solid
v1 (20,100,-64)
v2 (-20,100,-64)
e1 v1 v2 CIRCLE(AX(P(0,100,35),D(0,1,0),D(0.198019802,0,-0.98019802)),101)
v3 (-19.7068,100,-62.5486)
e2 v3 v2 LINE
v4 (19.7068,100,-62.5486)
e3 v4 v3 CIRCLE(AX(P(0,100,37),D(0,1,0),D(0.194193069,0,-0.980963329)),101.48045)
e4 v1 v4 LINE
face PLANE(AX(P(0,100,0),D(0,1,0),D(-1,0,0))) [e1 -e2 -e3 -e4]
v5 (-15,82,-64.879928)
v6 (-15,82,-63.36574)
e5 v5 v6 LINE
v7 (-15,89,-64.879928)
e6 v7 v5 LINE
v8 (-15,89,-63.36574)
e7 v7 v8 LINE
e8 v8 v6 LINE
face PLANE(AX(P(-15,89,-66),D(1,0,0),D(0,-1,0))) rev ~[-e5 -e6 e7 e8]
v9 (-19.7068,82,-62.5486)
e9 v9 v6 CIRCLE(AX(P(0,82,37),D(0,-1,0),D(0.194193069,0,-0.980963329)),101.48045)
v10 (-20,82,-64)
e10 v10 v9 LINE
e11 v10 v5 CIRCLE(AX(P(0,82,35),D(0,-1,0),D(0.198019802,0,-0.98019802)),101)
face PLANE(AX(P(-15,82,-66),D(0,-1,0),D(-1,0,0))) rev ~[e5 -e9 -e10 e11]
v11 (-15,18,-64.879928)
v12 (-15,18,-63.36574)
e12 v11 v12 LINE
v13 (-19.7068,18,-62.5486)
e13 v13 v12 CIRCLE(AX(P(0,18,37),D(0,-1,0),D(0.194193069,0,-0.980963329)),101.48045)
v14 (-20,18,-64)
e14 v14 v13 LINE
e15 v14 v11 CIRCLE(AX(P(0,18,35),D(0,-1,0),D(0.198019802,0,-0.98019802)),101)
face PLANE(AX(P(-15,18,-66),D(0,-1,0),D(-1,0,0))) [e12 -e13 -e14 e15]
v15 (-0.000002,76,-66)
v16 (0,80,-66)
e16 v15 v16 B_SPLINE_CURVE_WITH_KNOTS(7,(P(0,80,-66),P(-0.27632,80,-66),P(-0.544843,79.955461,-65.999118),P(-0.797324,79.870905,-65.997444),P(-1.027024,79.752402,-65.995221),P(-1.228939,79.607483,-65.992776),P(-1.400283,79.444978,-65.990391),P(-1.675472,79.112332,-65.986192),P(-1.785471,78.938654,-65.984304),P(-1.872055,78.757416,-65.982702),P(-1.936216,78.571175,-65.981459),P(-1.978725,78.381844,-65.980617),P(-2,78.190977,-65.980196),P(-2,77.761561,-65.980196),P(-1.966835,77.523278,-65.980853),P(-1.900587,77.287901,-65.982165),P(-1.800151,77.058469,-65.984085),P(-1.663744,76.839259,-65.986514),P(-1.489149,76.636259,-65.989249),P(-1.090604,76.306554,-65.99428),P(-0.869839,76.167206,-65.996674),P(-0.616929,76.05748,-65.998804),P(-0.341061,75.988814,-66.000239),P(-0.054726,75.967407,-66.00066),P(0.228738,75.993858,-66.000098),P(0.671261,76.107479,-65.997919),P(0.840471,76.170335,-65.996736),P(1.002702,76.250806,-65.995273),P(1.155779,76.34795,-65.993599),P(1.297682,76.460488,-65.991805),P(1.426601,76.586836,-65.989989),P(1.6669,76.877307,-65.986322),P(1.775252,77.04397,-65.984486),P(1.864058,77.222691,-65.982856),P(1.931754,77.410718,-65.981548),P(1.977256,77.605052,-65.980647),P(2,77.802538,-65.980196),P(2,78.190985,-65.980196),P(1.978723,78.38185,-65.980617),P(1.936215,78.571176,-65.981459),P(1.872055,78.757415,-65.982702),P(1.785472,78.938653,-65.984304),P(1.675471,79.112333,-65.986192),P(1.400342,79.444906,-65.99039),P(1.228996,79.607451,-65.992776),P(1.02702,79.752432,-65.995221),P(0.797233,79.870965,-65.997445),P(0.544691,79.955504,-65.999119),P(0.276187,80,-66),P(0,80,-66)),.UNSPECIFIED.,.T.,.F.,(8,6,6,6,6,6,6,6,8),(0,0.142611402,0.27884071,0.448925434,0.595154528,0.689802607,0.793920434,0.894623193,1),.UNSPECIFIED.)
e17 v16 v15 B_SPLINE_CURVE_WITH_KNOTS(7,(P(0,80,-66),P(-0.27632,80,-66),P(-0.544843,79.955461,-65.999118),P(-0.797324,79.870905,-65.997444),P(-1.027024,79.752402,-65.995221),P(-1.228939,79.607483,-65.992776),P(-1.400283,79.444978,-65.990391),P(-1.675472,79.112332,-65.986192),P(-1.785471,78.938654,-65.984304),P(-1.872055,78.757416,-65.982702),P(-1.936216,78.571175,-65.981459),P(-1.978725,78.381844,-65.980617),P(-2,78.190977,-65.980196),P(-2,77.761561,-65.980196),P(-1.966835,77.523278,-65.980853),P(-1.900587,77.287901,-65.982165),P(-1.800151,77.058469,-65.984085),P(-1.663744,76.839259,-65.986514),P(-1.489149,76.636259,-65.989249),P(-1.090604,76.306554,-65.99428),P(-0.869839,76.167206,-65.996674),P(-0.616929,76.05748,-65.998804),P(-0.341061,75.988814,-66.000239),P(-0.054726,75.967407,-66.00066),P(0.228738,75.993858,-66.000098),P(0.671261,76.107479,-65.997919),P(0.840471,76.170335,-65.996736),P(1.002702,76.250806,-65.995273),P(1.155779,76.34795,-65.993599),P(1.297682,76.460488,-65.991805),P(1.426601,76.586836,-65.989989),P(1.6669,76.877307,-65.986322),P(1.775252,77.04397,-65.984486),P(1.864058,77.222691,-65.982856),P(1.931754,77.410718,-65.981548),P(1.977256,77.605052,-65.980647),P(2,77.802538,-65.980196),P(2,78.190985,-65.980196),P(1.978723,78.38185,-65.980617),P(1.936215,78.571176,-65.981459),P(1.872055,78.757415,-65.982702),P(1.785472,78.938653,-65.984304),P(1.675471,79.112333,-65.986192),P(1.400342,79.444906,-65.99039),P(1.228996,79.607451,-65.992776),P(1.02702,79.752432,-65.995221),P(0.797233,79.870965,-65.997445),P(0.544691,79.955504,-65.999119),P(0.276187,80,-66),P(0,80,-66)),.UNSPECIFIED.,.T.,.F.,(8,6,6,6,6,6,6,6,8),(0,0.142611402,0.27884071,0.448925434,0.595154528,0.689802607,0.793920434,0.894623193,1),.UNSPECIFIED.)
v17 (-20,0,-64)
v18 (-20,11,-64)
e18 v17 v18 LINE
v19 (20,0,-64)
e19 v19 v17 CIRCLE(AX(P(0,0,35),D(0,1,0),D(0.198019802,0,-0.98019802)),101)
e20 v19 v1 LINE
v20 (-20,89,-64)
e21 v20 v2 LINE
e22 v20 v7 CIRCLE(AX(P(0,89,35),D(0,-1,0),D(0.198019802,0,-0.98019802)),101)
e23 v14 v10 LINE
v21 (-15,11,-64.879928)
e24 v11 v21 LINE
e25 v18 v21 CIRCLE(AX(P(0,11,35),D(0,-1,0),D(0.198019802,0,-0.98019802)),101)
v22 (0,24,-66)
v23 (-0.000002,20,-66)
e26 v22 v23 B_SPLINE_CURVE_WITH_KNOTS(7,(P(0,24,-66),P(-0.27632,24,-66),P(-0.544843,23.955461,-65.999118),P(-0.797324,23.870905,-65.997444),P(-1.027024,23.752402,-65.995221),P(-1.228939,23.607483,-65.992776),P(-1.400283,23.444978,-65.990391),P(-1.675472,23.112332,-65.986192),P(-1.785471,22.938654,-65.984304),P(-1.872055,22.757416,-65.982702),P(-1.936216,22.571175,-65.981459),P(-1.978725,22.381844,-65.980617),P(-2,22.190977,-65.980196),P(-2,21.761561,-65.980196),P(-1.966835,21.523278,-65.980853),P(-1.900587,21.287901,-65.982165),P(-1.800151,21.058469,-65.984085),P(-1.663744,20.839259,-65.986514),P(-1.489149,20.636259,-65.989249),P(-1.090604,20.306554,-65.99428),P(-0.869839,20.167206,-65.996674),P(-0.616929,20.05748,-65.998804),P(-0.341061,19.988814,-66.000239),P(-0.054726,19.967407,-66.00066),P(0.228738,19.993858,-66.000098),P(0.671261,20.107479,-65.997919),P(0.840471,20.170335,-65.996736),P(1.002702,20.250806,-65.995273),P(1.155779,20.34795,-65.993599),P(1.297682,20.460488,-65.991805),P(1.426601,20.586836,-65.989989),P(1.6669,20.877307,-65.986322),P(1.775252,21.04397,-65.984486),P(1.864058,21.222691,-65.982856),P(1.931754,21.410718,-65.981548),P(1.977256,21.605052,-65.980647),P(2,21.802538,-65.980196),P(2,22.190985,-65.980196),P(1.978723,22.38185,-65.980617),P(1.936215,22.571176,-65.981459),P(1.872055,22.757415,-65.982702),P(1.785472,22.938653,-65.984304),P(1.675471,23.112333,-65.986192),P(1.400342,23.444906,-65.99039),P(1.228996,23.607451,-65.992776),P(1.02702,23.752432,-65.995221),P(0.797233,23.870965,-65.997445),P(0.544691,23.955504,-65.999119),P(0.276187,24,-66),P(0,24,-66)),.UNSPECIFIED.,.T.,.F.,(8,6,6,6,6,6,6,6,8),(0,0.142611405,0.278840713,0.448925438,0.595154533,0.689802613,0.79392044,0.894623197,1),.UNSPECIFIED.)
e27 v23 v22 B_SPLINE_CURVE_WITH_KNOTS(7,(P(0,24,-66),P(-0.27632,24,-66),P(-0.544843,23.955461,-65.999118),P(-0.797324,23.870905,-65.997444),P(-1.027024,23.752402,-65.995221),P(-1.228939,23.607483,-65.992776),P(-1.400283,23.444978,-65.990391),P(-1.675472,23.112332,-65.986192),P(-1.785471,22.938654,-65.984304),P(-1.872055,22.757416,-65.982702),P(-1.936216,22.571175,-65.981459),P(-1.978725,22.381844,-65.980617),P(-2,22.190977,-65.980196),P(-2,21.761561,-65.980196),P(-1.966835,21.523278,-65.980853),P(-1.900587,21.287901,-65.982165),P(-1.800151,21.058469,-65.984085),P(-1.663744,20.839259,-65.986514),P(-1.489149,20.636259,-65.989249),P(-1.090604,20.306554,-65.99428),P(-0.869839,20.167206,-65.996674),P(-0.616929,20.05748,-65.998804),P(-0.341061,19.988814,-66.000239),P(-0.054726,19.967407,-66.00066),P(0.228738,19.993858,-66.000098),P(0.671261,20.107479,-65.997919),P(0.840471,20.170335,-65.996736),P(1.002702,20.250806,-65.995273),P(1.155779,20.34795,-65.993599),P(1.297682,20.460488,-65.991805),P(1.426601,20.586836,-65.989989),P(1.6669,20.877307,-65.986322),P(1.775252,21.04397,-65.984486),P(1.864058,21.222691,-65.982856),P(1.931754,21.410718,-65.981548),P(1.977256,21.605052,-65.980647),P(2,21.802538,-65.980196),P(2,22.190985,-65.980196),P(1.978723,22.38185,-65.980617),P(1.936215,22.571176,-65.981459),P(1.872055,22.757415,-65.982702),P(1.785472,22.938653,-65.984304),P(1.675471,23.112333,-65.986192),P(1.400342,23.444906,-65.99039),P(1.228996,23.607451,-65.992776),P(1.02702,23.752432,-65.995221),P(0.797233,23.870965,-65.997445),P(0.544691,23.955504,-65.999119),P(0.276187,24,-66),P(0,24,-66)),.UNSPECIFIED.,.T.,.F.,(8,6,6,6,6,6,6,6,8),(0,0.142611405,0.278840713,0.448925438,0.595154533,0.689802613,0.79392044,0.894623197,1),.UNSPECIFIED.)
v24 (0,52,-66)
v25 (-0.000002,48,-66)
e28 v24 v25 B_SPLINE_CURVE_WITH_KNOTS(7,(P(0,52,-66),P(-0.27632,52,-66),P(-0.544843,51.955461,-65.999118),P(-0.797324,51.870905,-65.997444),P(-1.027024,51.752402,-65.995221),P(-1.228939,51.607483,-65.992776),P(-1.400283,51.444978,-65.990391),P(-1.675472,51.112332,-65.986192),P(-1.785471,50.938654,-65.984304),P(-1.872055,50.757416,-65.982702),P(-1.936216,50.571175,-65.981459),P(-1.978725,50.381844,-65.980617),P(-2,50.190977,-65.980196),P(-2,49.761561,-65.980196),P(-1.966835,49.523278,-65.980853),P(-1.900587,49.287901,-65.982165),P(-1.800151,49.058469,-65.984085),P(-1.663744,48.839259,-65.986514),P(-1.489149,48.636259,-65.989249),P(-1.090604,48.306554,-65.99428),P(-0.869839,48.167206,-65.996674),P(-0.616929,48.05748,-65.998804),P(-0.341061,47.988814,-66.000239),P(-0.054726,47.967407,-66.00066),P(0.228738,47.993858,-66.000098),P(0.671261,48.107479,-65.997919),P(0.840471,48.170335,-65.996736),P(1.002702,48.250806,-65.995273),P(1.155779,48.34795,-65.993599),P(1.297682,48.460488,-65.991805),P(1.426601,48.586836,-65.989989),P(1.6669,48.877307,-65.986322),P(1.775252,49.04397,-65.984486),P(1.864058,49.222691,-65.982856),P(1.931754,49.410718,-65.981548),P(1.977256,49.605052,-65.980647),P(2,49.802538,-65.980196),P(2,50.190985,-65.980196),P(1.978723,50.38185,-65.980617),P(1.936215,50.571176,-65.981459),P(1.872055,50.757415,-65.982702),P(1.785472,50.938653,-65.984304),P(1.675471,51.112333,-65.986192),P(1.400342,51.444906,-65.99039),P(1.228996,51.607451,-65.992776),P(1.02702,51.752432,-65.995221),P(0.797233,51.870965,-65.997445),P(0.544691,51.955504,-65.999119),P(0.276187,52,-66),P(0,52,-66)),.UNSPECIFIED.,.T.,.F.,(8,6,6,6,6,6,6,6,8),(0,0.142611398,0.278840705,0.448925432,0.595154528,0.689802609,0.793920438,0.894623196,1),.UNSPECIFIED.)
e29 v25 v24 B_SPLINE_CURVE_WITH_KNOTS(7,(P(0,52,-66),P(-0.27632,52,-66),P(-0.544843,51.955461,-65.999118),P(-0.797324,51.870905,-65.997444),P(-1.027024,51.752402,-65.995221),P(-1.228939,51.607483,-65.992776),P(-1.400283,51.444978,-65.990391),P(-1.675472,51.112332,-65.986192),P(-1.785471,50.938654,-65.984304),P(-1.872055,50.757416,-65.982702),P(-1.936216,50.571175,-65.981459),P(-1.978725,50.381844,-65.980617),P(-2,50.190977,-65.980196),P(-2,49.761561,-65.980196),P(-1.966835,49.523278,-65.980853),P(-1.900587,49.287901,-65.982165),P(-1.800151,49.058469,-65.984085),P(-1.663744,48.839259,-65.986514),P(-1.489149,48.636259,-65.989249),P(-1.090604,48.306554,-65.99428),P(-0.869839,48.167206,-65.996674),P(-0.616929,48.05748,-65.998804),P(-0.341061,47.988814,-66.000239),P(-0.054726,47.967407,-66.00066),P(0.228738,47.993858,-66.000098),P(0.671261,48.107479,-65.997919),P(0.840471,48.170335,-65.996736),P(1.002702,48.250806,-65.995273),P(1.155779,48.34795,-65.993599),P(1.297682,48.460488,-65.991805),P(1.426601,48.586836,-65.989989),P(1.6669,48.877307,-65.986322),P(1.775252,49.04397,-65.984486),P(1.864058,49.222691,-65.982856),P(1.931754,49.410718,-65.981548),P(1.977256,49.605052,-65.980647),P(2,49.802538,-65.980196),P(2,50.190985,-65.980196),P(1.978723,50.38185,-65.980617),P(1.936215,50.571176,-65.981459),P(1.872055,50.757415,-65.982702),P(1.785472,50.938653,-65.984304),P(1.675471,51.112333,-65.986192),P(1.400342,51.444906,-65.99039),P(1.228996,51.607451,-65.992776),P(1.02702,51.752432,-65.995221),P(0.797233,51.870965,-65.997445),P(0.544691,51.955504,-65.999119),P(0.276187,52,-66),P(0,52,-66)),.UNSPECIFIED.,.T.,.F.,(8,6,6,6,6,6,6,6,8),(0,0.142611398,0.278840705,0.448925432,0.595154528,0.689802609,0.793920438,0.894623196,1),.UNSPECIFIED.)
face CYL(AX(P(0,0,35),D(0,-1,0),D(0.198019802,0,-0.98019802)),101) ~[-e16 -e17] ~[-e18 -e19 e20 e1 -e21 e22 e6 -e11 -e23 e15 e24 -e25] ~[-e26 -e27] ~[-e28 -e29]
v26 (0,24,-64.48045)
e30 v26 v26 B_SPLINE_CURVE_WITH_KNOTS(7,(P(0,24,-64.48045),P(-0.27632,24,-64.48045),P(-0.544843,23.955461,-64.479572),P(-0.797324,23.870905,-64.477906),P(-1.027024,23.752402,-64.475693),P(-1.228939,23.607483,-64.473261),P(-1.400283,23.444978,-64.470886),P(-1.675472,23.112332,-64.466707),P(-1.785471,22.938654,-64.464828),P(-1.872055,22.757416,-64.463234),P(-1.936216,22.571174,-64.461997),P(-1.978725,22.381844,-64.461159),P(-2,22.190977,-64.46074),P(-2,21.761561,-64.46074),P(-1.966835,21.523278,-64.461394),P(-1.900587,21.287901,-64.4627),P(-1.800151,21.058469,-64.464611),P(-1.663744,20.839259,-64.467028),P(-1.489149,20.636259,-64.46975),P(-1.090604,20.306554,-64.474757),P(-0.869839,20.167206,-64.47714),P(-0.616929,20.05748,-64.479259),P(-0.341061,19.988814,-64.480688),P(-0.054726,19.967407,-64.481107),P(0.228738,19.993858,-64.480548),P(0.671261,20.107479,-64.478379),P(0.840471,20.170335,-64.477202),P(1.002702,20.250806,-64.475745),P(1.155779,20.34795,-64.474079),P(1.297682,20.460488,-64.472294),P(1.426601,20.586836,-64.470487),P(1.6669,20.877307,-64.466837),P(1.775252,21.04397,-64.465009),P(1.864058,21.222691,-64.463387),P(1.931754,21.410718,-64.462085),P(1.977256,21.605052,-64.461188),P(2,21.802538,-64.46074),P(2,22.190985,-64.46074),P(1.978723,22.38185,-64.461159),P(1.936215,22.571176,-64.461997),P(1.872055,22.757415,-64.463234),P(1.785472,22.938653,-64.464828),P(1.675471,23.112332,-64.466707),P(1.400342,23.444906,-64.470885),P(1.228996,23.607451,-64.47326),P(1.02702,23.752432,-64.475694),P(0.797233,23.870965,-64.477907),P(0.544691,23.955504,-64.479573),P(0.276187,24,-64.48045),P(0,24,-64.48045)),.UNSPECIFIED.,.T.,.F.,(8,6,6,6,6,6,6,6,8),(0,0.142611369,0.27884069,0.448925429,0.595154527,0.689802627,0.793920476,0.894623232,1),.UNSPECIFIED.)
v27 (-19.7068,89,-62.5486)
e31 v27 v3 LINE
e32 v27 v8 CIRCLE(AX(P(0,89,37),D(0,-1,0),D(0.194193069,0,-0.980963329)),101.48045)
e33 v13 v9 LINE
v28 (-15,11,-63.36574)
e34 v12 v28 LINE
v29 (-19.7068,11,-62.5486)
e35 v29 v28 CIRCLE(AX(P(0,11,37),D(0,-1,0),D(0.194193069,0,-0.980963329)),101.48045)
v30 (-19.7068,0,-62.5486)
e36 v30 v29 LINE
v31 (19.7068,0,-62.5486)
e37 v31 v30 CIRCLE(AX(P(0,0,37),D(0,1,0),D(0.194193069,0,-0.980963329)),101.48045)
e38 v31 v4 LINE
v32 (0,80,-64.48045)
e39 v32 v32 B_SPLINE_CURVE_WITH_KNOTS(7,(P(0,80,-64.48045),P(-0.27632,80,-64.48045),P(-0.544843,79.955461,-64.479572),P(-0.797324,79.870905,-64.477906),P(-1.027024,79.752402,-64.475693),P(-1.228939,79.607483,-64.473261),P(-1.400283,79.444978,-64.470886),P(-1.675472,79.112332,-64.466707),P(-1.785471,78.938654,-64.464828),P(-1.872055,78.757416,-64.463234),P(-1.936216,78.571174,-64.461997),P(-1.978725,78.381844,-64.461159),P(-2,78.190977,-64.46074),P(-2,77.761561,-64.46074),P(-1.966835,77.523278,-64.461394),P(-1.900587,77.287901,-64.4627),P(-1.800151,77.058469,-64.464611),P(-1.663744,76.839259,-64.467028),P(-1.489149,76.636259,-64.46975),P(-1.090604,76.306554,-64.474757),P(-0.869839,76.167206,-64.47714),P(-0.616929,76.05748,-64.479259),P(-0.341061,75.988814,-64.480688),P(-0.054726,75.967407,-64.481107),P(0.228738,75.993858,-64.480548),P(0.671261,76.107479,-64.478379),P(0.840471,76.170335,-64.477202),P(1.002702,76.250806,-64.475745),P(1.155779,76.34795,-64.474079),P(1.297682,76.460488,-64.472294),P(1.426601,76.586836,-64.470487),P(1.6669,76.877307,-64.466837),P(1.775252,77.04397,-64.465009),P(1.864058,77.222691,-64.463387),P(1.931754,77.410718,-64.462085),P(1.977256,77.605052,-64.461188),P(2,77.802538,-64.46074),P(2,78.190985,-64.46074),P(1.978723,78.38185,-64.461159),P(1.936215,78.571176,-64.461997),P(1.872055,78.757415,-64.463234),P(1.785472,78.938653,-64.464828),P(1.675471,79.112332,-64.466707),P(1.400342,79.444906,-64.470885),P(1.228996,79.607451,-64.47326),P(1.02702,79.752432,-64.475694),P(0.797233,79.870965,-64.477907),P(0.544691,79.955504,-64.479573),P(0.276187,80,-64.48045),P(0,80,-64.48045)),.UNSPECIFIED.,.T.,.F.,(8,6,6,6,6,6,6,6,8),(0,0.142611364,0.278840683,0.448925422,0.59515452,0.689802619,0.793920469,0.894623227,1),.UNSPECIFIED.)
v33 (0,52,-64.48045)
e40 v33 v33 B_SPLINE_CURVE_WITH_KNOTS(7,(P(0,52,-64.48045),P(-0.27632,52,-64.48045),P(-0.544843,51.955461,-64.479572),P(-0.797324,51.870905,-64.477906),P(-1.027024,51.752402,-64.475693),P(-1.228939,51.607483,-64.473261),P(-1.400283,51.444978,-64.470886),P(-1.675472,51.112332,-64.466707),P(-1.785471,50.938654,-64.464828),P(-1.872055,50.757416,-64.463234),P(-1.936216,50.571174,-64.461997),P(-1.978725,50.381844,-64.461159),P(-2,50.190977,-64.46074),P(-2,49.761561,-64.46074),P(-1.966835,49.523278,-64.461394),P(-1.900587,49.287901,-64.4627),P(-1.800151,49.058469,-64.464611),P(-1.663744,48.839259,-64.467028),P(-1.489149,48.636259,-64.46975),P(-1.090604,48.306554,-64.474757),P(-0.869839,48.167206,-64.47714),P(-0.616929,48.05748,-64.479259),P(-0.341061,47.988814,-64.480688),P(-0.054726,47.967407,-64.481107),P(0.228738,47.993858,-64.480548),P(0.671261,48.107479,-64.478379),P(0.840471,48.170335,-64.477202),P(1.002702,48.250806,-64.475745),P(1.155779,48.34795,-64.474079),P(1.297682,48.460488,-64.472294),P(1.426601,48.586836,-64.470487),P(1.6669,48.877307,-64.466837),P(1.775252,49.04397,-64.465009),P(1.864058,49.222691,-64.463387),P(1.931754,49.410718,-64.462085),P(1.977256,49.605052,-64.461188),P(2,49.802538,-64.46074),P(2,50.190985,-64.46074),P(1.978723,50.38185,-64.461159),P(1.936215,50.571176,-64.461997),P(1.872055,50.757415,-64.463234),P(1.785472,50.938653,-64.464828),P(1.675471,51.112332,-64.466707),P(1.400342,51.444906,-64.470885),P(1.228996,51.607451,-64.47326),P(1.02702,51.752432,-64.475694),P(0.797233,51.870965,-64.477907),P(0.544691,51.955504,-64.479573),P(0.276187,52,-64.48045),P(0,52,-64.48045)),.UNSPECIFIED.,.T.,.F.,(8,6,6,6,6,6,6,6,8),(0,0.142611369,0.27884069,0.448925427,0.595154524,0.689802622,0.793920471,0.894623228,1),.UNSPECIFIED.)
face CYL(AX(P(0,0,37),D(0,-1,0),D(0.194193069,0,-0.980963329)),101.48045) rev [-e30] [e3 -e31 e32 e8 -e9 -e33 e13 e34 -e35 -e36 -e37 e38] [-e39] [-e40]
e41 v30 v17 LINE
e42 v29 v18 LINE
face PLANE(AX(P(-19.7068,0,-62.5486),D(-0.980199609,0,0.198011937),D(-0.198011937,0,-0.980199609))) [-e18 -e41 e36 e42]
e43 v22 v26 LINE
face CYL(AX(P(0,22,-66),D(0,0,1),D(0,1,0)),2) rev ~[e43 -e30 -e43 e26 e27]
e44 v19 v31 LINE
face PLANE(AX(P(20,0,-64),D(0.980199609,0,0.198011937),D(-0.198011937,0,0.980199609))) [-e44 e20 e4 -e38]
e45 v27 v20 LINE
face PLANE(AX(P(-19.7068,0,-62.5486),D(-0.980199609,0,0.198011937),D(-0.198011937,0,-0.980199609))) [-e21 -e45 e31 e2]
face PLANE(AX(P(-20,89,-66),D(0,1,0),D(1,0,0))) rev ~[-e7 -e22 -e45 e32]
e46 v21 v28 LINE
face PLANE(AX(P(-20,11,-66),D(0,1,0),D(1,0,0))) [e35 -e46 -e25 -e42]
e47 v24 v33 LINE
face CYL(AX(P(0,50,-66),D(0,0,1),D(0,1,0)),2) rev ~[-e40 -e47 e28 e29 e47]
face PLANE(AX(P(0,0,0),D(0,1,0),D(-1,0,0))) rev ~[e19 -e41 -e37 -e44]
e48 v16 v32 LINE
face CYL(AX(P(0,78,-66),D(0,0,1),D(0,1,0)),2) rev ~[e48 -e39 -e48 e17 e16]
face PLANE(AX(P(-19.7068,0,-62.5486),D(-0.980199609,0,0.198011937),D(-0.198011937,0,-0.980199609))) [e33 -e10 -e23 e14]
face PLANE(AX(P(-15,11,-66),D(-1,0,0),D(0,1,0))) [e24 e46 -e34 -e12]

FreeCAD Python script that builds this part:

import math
import FreeCAD as App
import Part
import Sketcher
from FreeCAD import Vector
Q = App.Units.Quantity

doc = App.newDocument("Part")
body = doc.addObject("PartDesign::Body", "Body")

# Sketch on XZ plane
sketch1 = body.newObject("Sketcher::SketchObject", "Sketch")
sketch1.AttachmentSupport = (doc.getObject("XZ_Plane"), [""])
sketch1.MapMode = "FlatFace"
sketch1.addGeometry([
    Part.ArcOfCircle(Part.Circle(Vector(0, 37, 0), Vector(0, 0, 1), 101.48045), math.radians(-101.197589), math.radians(-78.802411)),
    Part.LineSegment(Vector(19.7068, -62.5486, 0), Vector(20, -64, 0)),
    Part.ArcOfCircle(Part.Circle(Vector(0, 35, 0), Vector(0, 0, 1), 101), math.radians(-101.421186), math.radians(-78.578814)),
    Part.LineSegment(Vector(-20, -64, 0), Vector(-19.7068, -62.5486, 0)),
], False)
sketch1.addConstraint([
    Sketcher.Constraint("Coincident", 0, 2, 1, 1),
    Sketcher.Constraint("Coincident", 1, 2, 2, 2),
    Sketcher.Constraint("Coincident", 2, 1, 3, 1),
    Sketcher.Constraint("Coincident", 3, 2, 0, 1),
    Sketcher.Constraint("Symmetric", 1, 2, 2, 1, -2),
    Sketcher.Constraint("Symmetric", 0, 2, 3, 2, -2),
    Sketcher.Constraint("Radius", 2, Q("101 mm")),
    Sketcher.Constraint("DistanceY", -1, 1, 2, 3, Q("35 mm")),
    Sketcher.Constraint("DistanceY", 2, 3, 0, 3, Q("2 mm")),
    Sketcher.Constraint("DistanceY", 1, 2, 0, 3, Q("101 mm")),
    Sketcher.Constraint("Angle", 1, Q("-78.5793 deg")),
    Sketcher.Constraint("Radius", 0, Q("101.4804 mm")),
])
pad1 = body.newObject("PartDesign::Pad", "Pad")
pad1.Profile = sketch1
pad1.Length = 100
pad1.Reversed = True

# Sketch on XY plane
sketch2 = body.newObject("Sketcher::SketchObject", "Sketch001")
sketch2.AttachmentSupport = (doc.getObject("XY_Plane"), [""])
sketch2.MapMode = "FlatFace"
sketch2.AttachmentOffset = App.Placement(Vector(0, 0, -66), App.Rotation())
sketch2.addGeometry([
    Part.Circle(Vector(0, 78, 0), Vector(0, 0, 1), 2),
    Part.Circle(Vector(0, 50, 0), Vector(0, 0, 1), 2),
    Part.Circle(Vector(0, 22, 0), Vector(0, 0, 1), 2),
], False)
sketch2.addConstraint([
    Sketcher.Constraint("Equal", 0, 1),
    Sketcher.Constraint("Equal", 1, 2),
    Sketcher.Constraint("PointOnObject", 0, 3, -2),
    Sketcher.Constraint("PointOnObject", 1, 3, -2),
    Sketcher.Constraint("PointOnObject", 2, 3, -2),
    Sketcher.Constraint("Diameter", 0, Q("4 mm")),
    Sketcher.Constraint("DistanceY", -1, 1, 0, 3, Q("78 mm")),
    Sketcher.Constraint("DistanceY", -1, 1, 1, 3, Q("50 mm")),
    Sketcher.Constraint("DistanceY", -1, 1, 2, 3, Q("22 mm")),
])
doc.recompute()
hole = body.newObject("PartDesign::Hole", "Hole")
hole.Profile = sketch2
hole.ThreadType = "None"
hole.Diameter = 4
hole.DepthType = "ThroughAll"
hole.Reversed = True

# Sketch on XY plane
sketch3 = body.newObject("Sketcher::SketchObject", "Sketch002")
sketch3.AttachmentSupport = (doc.getObject("XY_Plane"), [""])
sketch3.MapMode = "FlatFace"
sketch3.AttachmentOffset = App.Placement(Vector(0, 0, -66), App.Rotation())
sketch3.addGeometry([
    Part.LineSegment(Vector(-20, 89, 0), Vector(-20, 82, 0)),  # 0
    Part.LineSegment(Vector(-20, 82, 0), Vector(-15, 82, 0)),  # 1
    Part.LineSegment(Vector(-15, 82, 0), Vector(-15, 89, 0)),  # 2
    Part.LineSegment(Vector(-15, 89, 0), Vector(-20, 89, 0)),  # 3
    Part.LineSegment(Vector(-20, 18, 0), Vector(-20, 11, 0)),  # 4
    Part.LineSegment(Vector(-20, 11, 0), Vector(-15, 11, 0)),  # 5
    Part.LineSegment(Vector(-15, 11, 0), Vector(-15, 18, 0)),  # 6
    Part.LineSegment(Vector(-15, 18, 0), Vector(-20, 18, 0)),  # 7
], False)
sketch3.addConstraint([
    Sketcher.Constraint("Coincident", 0, 2, 1, 1),
    Sketcher.Constraint("Coincident", 1, 2, 2, 1),
    Sketcher.Constraint("Coincident", 2, 2, 3, 1),
    Sketcher.Constraint("Coincident", 3, 2, 0, 1),
    Sketcher.Constraint("Coincident", 4, 2, 5, 1),
    Sketcher.Constraint("Coincident", 5, 2, 6, 1),
    Sketcher.Constraint("Coincident", 6, 2, 7, 1),
    Sketcher.Constraint("Coincident", 7, 2, 4, 1),
    Sketcher.Constraint("Vertical", 0),
    Sketcher.Constraint("Horizontal", 1),
    Sketcher.Constraint("Vertical", 2),
    Sketcher.Constraint("Horizontal", 3),
    Sketcher.Constraint("Vertical", 4),
    Sketcher.Constraint("Horizontal", 5),
    Sketcher.Constraint("Vertical", 6),
    Sketcher.Constraint("Horizontal", 7),
    Sketcher.Constraint("Vertical", 3, 2, 4, 2),
    Sketcher.Constraint("Vertical", 2, 2, 5, 2),
    Sketcher.Constraint("Equal", 2, 4),
    Sketcher.Constraint("DistanceX", 1, 1, 1, 2, Q("5 mm")),
    Sketcher.Constraint("DistanceY", 0, 2, 0, 1, Q("7 mm")),
    Sketcher.Constraint("DistanceY", -1, 1, 4, 2, Q("11 mm")),
    Sketcher.Constraint("DistanceX", 0, 2, -1, 1, Q("20 mm")),
    Sketcher.Constraint("DistanceY", -1, 1, 0, 2, Q("82 mm")),
])
pocket1 = body.newObject("PartDesign::Pocket", "Pocket")
pocket1.Profile = sketch3
pocket1.Type = "ThroughAll"
pocket1.Reversed = True

doc.recompute()
